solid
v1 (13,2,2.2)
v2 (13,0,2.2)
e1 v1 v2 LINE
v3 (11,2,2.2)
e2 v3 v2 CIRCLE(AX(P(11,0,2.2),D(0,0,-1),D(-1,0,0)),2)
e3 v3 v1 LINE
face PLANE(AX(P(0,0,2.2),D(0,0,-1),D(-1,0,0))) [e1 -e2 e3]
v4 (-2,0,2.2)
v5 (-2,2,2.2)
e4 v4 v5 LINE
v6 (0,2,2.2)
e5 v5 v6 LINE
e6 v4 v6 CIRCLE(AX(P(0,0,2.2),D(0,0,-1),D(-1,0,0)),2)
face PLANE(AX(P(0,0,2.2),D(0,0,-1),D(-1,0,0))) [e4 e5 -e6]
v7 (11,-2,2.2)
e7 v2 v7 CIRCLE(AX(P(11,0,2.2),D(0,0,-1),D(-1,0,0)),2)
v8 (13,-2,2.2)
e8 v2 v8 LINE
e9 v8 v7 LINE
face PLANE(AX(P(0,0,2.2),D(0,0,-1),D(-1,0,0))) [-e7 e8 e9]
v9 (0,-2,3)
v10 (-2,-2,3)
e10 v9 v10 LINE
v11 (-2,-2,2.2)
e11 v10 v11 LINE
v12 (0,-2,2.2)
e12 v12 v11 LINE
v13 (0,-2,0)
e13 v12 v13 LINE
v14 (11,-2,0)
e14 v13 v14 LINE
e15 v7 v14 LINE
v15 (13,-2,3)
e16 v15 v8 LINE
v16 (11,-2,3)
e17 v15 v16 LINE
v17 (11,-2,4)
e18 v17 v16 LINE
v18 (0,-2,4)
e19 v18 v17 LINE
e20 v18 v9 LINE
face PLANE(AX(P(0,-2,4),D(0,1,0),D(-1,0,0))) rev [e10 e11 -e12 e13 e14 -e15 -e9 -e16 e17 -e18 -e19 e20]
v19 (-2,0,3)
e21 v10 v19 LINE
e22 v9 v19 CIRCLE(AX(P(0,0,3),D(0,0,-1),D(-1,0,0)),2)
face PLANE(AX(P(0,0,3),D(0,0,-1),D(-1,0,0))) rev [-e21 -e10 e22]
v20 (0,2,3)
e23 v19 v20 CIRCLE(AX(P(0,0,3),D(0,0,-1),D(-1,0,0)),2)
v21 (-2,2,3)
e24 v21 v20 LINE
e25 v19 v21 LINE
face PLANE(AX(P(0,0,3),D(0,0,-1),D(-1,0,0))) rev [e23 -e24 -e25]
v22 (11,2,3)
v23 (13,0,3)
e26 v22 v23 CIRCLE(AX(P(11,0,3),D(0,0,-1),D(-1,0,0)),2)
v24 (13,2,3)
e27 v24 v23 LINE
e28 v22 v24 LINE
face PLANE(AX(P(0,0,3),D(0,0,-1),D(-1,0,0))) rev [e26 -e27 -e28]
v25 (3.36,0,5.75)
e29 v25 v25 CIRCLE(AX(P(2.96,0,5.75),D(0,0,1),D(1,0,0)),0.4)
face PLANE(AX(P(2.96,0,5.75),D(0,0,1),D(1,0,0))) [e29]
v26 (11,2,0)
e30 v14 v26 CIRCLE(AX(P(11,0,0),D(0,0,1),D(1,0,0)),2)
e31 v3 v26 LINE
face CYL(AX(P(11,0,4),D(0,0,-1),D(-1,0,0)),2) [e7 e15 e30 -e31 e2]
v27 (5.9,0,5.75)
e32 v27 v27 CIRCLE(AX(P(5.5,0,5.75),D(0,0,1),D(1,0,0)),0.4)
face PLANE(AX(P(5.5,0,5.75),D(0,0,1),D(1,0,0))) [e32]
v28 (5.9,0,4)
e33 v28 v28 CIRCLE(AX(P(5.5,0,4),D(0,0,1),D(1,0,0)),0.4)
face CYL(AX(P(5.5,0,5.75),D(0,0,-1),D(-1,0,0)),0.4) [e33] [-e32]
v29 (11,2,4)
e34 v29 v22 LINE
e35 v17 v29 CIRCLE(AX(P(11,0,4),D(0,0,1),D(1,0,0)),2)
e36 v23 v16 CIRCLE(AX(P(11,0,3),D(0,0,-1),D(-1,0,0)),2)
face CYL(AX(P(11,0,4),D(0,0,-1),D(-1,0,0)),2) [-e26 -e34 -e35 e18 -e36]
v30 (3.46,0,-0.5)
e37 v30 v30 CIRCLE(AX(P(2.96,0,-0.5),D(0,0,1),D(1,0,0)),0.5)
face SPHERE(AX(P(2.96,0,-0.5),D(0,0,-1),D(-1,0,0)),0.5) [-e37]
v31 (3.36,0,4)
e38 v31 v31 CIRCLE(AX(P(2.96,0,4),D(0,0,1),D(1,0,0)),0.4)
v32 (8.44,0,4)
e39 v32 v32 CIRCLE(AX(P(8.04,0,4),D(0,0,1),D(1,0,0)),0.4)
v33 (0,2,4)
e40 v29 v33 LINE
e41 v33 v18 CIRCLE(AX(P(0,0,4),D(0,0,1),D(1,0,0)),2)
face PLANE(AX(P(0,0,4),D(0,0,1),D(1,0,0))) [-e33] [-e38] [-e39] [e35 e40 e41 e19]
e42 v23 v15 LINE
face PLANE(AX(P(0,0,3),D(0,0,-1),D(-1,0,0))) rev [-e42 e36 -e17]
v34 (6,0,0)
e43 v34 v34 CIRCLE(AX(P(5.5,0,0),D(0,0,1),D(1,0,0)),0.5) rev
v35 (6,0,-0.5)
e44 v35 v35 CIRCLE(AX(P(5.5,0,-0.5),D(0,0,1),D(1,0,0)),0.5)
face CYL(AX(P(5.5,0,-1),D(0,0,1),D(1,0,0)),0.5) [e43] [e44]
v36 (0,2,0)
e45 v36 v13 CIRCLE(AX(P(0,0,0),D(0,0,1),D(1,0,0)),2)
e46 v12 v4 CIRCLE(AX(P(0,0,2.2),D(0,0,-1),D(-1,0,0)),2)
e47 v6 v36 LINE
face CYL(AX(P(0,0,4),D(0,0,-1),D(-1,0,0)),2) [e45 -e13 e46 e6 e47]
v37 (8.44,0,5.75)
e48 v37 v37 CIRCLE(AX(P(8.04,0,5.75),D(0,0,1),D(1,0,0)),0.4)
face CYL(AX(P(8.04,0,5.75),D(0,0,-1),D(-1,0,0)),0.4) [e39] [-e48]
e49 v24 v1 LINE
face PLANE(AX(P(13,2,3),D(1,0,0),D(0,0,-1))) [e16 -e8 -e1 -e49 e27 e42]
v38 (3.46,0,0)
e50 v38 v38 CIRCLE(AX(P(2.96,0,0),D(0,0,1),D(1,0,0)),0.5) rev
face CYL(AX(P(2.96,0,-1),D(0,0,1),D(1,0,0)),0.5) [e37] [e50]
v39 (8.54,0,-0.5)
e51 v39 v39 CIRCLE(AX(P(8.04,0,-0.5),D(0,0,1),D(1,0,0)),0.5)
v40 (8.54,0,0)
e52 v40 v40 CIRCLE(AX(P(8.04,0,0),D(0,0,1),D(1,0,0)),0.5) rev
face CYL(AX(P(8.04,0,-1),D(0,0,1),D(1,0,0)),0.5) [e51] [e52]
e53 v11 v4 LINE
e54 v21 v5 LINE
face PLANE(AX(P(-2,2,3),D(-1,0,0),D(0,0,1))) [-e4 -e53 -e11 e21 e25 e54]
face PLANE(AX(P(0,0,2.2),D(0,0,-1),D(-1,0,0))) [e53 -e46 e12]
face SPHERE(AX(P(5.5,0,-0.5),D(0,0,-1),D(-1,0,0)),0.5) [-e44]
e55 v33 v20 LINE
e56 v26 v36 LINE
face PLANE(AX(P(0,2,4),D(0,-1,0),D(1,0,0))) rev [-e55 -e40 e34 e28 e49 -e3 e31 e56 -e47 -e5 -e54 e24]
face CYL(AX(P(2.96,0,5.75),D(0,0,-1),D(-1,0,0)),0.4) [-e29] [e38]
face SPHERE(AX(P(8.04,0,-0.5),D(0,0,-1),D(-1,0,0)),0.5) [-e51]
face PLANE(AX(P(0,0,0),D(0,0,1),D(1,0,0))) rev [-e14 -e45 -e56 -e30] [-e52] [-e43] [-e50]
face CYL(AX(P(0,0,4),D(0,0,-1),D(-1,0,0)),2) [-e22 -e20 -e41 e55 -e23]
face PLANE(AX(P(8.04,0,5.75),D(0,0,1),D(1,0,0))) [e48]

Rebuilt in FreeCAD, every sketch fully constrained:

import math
import FreeCAD as App
import Part
import Sketcher


def edges_at(feature, points):
    """Names of the edges that pass closest to the given points."""
    edges = feature.Shape.Edges
    near = lambda p: min(range(len(edges)), key=lambda i: edges[i].distToShape(Part.Vertex(*p))[0])
    return sorted({f"Edge{near(p) + 1}" for p in points})

doc = App.newDocument("Part")
params = doc.addObject("Spreadsheet::Sheet", "Params")
for row, (alias, value) in enumerate([
    ("sketch1_radius", "2 mm"),
    ("sketch1_width", "11 mm"),
    ("pad1_length", "4 mm"),
    ("sketch2_width", "15 mm"),
    ("sketch2_height", "4 mm"),
    ("pad2_length", "0.8 mm"),
    ("sketch3_diameter", "1 mm"),
    ("pad3_length", "1 mm"),
    ("fillet_radius", "0.5 mm"),
    ("sketch4_diameter", "0.8 mm"),
    ("pad4_length", "1.75 mm"),
], start=1):
    params.set(f"A{row}", alias)
    params.set(f"B{row}", "=" + value)
    params.setAlias(f"B{row}", alias)

body = doc.addObject("PartDesign::Body", "Body")

sketch1 = body.newObject("Sketcher::SketchObject", "Sketch")
sketch1.AttachmentSupport = (doc.getObject("XY_Plane"), [""])
sketch1.MapMode = "FlatFace"
sketch1.addGeometry(Part.LineSegment(App.Vector(11, 2, 0), App.Vector(0, 2, 0)), False)
sketch1.addGeometry(Part.ArcOfCircle(Part.Circle(App.Vector(0, 0, 0), App.Vector(0, 0, 1), 2), math.radians(90), math.radians(270)), False)
sketch1.addGeometry(Part.LineSegment(App.Vector(0, -2, 0), App.Vector(11, -2, 0)), False)
sketch1.addGeometry(Part.ArcOfCircle(Part.Circle(App.Vector(11, 0, 0), App.Vector(0, 0, 1), 2), math.radians(-90), math.radians(90)), False)
sketch1.addConstraint(Sketcher.Constraint("Tangent", 0, 2, 1, 1))
sketch1.addConstraint(Sketcher.Constraint("Tangent", 1, 2, 2, 1))
sketch1.addConstraint(Sketcher.Constraint("Tangent", 2, 2, 3, 1))
sketch1.addConstraint(Sketcher.Constraint("Tangent", 3, 2, 0, 1))
sketch1.addConstraint(Sketcher.Constraint("Horizontal", 0))
sketch1.addConstraint(Sketcher.Constraint("Horizontal", 2))
sketch1.addConstraint(Sketcher.Constraint("Coincident", 1, 3, -1, 1))
sketch1.addConstraint(Sketcher.Constraint("Radius", 1, 2.0))
sketch1.addConstraint(Sketcher.Constraint("DistanceX", 0, 2, 0, 1, 11.0))
sketch1.setExpression("Constraints[7]", "Params.sketch1_radius")
sketch1.setExpression("Constraints[8]", "Params.sketch1_width")
pad1 = body.newObject("PartDesign::Pad", "Pad")
pad1.Profile = sketch1
pad1.setExpression("Length", "Params.pad1_length")

sketch2 = body.newObject("Sketcher::SketchObject", "Sketch001")
sketch2.AttachmentSupport = (doc.getObject("XY_Plane"), [""])
sketch2.MapMode = "FlatFace"
sketch2.AttachmentOffset = App.Placement(App.Vector(0, 0, 2.2), App.Rotation())
sketch2.addGeometry(Part.LineSegment(App.Vector(13, 2, 0), App.Vector(13, -2, 0)), False)
sketch2.addGeometry(Part.LineSegment(App.Vector(13, -2, 0), App.Vector(-2, -2, 0)), False)
sketch2.addGeometry(Part.LineSegment(App.Vector(-2, -2, 0), App.Vector(-2, 2, 0)), False)
sketch2.addGeometry(Part.LineSegment(App.Vector(-2, 2, 0), App.Vector(13, 2, 0)), False)
sketch2.addConstraint(Sketcher.Constraint("Coincident", 0, 2, 1, 1))
sketch2.addConstraint(Sketcher.Constraint("Coincident", 1, 2, 2, 1))
sketch2.addConstraint(Sketcher.Constraint("Coincident", 2, 2, 3, 1))
sketch2.addConstraint(Sketcher.Constraint("Coincident", 3, 2, 0, 1))
sketch2.addConstraint(Sketcher.Constraint("Vertical", 0))
sketch2.addConstraint(Sketcher.Constraint("Horizontal", 1))
sketch2.addConstraint(Sketcher.Constraint("Vertical", 2))
sketch2.addConstraint(Sketcher.Constraint("Horizontal", 3))
sketch2.addConstraint(Sketcher.Constraint("DistanceX", 1, 2, 1, 1, 15.0))
sketch2.addConstraint(Sketcher.Constraint("DistanceY", 0, 2, 0, 1, 4.0))
sketch2.addConstraint(Sketcher.Constraint("DistanceX", -1, 1, 0, 2, 13.0))
sketch2.addConstraint(Sketcher.Constraint("DistanceY", 0, 2, -1, 1, 2.0))
sketch2.setExpression("Constraints[8]", "Params.sketch2_width")
sketch2.setExpression("Constraints[9]", "Params.sketch2_height")
pad2 = body.newObject("PartDesign::Pad", "Pad001")
pad2.Profile = sketch2
pad2.setExpression("Length", "Params.pad2_length")

sketch3 = body.newObject("Sketcher::SketchObject", "Sketch002")
sketch3.AttachmentSupport = (doc.getObject("XY_Plane"), [""])
sketch3.MapMode = "FlatFace"
sketch3.addGeometry(Part.Circle(App.Vector(8, 0, 0), App.Vector(0, 0, 1), 0.5), False)
sketch3.addGeometry(Part.Circle(App.Vector(5.5, 0, 0), App.Vector(0, 0, 1), 0.5), False)
sketch3.addGeometry(Part.Circle(App.Vector(3, 0, 0), App.Vector(0, 0, 1), 0.5), False)
sketch3.addConstraint(Sketcher.Constraint("Equal", 0, 1))
sketch3.addConstraint(Sketcher.Constraint("Equal", 1, 2))
sketch3.addConstraint(Sketcher.Constraint("PointOnObject", 0, 3, -1))
sketch3.addConstraint(Sketcher.Constraint("PointOnObject", 1, 3, -1))
sketch3.addConstraint(Sketcher.Constraint("PointOnObject", 2, 3, -1))
sketch3.addConstraint(Sketcher.Constraint("Diameter", 0, 1.0))
sketch3.addConstraint(Sketcher.Constraint("DistanceX", -1, 1, 1, 3, 5.5))
sketch3.addConstraint(Sketcher.Constraint("DistanceX", -1, 1, 0, 3, 8.04))
sketch3.addConstraint(Sketcher.Constraint("DistanceX", -1, 1, 2, 3, 2.96))
sketch3.setExpression("Constraints[5]", "Params.sketch3_diameter")
pad3 = body.newObject("PartDesign::Pad", "Pad002")
pad3.Profile = sketch3
pad3.setExpression("Length", "Params.pad3_length")
pad3.Reversed = True
doc.recompute()

fillet = body.newObject("PartDesign::Fillet", "Fillet")
fillet.Base = (pad3, edges_at(pad3, [(7.54, 0, -1), (5, 0, -1), (2.46, 0, -1)]))
fillet.setExpression("Radius", "Params.fillet_radius")

sketch4 = body.newObject("Sketcher::SketchObject", "Sketch003")
sketch4.AttachmentSupport = (doc.getObject("XY_Plane"), [""])
sketch4.MapMode = "FlatFace"
sketch4.AttachmentOffset = App.Placement(App.Vector(0, 0, 4), App.Rotation())
sketch4.addGeometry(Part.Circle(App.Vector(2.96, 0, 0), App.Vector(0, 0, 1), 0.4), False)
sketch4.addGeometry(Part.Circle(App.Vector(5.5, 0, 0), App.Vector(0, 0, 1), 0.4), False)
sketch4.addGeometry(Part.Circle(App.Vector(8.04, 0, 0), App.Vector(0, 0, 1), 0.4), False)
sketch4.addConstraint(Sketcher.Constraint("Equal", 0, 1))
sketch4.addConstraint(Sketcher.Constraint("Equal", 1, 2))
sketch4.addConstraint(Sketcher.Constraint("PointOnObject", 0, 3, -1))
sketch4.addConstraint(Sketcher.Constraint("PointOnObject", 1, 3, -1))
sketch4.addConstraint(Sketcher.Constraint("PointOnObject", 2, 3, -1))
sketch4.addConstraint(Sketcher.Constraint("Diameter", 0, 0.8))
sketch4.addConstraint(Sketcher.Constraint("DistanceX", -1, 1, 1, 3, 5.5))
sketch4.addConstraint(Sketcher.Constraint("DistanceX", -1, 1, 0, 3, 2.96))
sketch4.addConstraint(Sketcher.Constraint("DistanceX", -1, 1, 2, 3, 8.04))
sketch4.setExpression("Constraints[5]", "Params.sketch4_diameter")
pad4 = body.newObject("PartDesign::Pad", "Pad003")
pad4.Profile = sketch4
pad4.setExpression("Length", "Params.pad4_length")

doc.recompute()
